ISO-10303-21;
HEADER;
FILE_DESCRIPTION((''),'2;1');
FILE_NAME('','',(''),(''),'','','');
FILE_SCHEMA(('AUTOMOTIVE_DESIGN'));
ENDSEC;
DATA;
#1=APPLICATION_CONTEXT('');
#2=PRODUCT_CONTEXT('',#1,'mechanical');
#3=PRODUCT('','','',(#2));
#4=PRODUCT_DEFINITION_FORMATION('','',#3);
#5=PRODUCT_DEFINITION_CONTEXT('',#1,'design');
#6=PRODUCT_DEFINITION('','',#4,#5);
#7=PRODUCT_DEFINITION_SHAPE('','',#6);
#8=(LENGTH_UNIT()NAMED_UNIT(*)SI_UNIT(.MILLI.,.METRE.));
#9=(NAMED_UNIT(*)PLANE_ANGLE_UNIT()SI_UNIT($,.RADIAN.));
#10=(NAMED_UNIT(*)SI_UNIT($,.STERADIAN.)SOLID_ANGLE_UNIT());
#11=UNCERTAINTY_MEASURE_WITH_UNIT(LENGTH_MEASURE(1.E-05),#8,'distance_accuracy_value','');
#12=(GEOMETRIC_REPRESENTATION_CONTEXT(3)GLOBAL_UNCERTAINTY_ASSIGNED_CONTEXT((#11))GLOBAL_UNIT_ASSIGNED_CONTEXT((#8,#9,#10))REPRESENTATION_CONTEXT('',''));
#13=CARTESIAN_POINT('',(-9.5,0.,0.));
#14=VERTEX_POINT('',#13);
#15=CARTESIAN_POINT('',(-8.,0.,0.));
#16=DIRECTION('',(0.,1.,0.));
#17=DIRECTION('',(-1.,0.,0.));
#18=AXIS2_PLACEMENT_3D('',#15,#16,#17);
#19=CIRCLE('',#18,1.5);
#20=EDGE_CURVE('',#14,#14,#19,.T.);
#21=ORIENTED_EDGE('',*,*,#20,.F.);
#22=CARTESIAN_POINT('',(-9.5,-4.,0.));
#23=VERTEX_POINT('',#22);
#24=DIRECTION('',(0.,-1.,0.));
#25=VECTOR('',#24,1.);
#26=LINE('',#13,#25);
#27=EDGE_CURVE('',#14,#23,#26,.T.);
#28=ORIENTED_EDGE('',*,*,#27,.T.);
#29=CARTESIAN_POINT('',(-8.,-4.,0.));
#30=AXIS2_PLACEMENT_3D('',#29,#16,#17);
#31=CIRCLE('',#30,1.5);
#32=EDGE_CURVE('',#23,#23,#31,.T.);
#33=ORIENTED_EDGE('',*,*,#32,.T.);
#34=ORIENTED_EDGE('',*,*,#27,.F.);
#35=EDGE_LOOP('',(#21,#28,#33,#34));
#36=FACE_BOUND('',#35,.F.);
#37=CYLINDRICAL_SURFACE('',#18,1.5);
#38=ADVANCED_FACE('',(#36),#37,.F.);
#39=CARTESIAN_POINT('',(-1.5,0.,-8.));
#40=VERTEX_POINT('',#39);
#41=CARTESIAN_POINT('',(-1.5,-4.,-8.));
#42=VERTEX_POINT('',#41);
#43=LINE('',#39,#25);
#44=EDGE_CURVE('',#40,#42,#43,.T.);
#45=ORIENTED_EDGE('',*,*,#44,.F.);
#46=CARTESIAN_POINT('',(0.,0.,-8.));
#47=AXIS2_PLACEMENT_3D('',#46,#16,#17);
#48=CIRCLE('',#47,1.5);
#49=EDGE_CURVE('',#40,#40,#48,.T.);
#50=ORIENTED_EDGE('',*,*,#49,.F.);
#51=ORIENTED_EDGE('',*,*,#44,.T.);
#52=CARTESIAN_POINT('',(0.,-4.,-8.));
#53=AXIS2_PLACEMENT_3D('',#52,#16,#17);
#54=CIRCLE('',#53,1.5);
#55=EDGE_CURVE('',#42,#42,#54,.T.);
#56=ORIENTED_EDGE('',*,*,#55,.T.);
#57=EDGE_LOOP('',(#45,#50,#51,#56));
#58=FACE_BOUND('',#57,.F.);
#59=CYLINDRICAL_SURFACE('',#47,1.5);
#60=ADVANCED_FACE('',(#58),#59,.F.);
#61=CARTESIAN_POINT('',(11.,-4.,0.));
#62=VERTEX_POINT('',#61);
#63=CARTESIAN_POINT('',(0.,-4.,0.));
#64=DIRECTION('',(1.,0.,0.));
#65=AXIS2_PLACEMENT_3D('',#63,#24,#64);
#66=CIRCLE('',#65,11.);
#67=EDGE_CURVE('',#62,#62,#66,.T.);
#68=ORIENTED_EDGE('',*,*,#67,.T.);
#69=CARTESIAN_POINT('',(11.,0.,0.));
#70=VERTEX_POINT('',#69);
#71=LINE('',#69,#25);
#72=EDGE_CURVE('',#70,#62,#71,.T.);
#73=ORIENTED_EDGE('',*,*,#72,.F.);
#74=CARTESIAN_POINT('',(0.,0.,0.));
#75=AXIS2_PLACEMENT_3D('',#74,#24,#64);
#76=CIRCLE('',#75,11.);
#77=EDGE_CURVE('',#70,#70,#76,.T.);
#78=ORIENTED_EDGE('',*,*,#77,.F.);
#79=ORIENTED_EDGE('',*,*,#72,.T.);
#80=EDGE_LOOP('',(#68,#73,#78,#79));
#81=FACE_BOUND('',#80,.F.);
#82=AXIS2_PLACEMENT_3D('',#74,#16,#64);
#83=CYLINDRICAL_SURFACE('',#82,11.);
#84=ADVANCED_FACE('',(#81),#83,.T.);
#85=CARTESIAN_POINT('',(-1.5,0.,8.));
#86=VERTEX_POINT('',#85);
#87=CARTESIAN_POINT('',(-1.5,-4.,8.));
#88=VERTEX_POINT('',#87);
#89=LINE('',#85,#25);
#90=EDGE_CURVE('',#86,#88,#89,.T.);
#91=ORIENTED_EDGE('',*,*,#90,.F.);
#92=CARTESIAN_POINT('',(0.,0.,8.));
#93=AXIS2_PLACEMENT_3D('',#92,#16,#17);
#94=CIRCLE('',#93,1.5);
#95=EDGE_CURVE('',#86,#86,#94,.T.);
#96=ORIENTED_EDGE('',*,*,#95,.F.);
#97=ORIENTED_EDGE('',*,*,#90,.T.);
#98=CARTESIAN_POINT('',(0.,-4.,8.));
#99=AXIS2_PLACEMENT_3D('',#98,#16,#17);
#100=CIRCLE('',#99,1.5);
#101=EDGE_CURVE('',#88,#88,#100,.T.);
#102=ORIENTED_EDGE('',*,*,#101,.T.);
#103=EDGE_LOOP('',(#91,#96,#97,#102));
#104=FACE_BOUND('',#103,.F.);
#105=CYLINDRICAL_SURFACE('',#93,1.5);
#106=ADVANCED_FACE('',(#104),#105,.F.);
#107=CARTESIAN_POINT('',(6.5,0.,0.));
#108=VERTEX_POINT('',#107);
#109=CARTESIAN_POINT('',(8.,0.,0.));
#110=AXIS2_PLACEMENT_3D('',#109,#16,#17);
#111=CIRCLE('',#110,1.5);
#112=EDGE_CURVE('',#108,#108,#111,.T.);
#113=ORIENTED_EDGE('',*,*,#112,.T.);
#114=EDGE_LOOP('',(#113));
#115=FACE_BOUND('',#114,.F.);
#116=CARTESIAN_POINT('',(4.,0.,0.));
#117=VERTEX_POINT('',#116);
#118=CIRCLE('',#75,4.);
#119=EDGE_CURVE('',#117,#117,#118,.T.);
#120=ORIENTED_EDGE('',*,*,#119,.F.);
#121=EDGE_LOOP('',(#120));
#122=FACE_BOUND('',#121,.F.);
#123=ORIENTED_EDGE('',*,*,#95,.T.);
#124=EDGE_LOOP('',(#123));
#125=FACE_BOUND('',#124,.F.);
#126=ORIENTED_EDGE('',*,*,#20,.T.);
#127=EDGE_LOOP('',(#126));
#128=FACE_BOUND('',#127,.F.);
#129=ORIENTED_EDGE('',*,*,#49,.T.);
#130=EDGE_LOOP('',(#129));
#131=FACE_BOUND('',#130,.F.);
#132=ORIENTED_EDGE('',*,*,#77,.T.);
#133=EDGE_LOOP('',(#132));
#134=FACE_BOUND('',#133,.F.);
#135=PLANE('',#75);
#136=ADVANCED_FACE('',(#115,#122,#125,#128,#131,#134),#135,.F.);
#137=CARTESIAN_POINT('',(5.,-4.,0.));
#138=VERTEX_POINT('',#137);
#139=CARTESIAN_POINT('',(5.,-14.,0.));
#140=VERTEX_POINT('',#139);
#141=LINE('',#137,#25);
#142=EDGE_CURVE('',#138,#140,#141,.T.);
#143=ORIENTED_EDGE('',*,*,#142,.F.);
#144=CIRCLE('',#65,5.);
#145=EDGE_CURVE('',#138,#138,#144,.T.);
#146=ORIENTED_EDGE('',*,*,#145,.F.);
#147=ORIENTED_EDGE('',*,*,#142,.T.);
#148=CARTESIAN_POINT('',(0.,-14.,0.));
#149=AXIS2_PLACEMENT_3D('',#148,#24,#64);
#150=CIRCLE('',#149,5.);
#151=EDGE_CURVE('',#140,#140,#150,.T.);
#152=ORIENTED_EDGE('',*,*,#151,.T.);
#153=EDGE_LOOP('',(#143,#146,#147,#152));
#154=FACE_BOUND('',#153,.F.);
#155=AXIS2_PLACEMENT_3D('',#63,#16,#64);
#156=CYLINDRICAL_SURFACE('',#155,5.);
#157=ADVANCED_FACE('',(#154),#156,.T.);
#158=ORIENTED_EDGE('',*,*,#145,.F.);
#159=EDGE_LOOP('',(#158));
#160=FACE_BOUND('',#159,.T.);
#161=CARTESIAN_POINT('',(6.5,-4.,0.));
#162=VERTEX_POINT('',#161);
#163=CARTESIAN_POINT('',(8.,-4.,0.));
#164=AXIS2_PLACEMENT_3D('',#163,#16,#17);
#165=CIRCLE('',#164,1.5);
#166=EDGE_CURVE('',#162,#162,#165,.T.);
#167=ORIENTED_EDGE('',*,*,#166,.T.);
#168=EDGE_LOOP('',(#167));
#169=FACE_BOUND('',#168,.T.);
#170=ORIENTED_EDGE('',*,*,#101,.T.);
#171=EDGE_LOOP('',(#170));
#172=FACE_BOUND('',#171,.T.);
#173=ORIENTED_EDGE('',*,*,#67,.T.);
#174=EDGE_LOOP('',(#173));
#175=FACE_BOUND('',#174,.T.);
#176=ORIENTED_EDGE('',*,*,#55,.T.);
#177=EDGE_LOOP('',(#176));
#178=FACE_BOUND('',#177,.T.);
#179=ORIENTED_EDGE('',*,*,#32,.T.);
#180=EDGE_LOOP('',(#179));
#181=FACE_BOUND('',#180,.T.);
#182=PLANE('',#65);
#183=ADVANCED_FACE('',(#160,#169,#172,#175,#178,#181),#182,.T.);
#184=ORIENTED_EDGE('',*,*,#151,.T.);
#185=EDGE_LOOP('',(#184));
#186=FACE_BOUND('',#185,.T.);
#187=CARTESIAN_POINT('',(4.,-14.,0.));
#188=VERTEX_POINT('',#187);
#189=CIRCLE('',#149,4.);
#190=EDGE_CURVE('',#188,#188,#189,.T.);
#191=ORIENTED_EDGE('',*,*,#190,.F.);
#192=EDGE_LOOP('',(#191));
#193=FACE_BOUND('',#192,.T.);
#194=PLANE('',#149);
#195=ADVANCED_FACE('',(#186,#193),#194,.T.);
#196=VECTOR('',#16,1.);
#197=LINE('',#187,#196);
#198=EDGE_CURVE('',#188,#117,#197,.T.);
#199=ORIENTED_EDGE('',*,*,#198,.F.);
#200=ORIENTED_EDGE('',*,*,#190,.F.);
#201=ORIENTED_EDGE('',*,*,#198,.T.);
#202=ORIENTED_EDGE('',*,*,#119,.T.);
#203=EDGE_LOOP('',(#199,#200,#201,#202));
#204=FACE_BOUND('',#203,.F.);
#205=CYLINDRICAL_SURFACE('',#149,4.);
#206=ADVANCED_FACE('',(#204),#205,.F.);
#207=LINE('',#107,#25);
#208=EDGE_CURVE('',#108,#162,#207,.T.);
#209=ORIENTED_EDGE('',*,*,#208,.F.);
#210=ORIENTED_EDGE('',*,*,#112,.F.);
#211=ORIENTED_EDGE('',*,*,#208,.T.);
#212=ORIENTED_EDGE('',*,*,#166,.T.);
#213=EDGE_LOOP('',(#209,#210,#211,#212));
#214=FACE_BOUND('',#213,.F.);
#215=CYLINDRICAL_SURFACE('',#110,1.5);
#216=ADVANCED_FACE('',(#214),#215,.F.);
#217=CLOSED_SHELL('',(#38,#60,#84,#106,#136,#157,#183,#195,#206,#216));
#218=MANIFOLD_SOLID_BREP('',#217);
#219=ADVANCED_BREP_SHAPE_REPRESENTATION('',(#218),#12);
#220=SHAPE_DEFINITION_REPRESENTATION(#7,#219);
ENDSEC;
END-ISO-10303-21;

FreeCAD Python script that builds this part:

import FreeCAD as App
import Part
import Sketcher

doc = App.newDocument("Part")
body = doc.addObject("PartDesign::Body", "Body")

# Sketch on XZ plane
sketch1 = doc.addObject("Sketcher::SketchObject", "Sketch")
body.addObject(sketch1)
sketch1.AttachmentSupport = (doc.XZ_Plane, [""])
sketch1.MapMode = "FlatFace"
sketch1.addGeometry(Part.Circle(App.Vector(0, 0, 0), App.Vector(0, 0, 1), 11), False)
sketch1.addConstraint([
    Sketcher.Constraint("Coincident", 0, 3, -1, 1),
    Sketcher.Constraint("Diameter", 0, 22.0),
])
pad1 = doc.addObject("PartDesign::Pad", "Pad")
body.addObject(pad1)
pad1.Profile = sketch1
pad1.Length = 4

# Sketch on XZ plane
sketch2 = doc.addObject("Sketcher::SketchObject", "Sketch001")
body.addObject(sketch2)
sketch2.AttachmentSupport = (doc.XZ_Plane, [""])
sketch2.MapMode = "FlatFace"
sketch2.AttachmentOffset = App.Placement(App.Vector(0, 0, 4), App.Rotation())
sketch2.addGeometry(Part.Circle(App.Vector(0, 0, 0), App.Vector(0, 0, 1), 5), False)
sketch2.addConstraint([
    Sketcher.Constraint("Coincident", 0, 3, -1, 1),
    Sketcher.Constraint("Diameter", 0, 10.0),
])
pad2 = doc.addObject("PartDesign::Pad", "Pad001")
body.addObject(pad2)
pad2.Profile = sketch2
pad2.Length = 10

# Sketch on XZ plane
sketch3 = doc.addObject("Sketcher::SketchObject", "Sketch002")
body.addObject(sketch3)
sketch3.AttachmentSupport = (doc.XZ_Plane, [""])
sketch3.MapMode = "FlatFace"
sketch3.AttachmentOffset = App.Placement(App.Vector(0, 0, 14), App.Rotation())
sketch3.addGeometry(Part.Circle(App.Vector(0, 0, 0), App.Vector(0, 0, 1), 4), False)
sketch3.addConstraint([
    Sketcher.Constraint("Coincident", 0, 3, -1, 1),
    Sketcher.Constraint("Diameter", 0, 8.0),
])
pocket1 = doc.addObject("PartDesign::Pocket", "Pocket")
body.addObject(pocket1)
pocket1.Profile = sketch3
pocket1.Length = 25

# Sketch on XZ plane
sketch4 = doc.addObject("Sketcher::SketchObject", "Sketch003")
body.addObject(sketch4)
sketch4.AttachmentSupport = (doc.XZ_Plane, [""])
sketch4.MapMode = "FlatFace"
sketch4.addGeometry([
    Part.Circle(App.Vector(8, 0, 0), App.Vector(0, 0, 1), 1.5),
    Part.Circle(App.Vector(0, 8, 0), App.Vector(0, 0, 1), 1.5),
    Part.Circle(App.Vector(-8, 0, 0), App.Vector(0, 0, 1), 1.5),
    Part.Circle(App.Vector(0, -8, 0), App.Vector(0, 0, 1), 1.5),
], False)
sketch4.addConstraint([
    Sketcher.Constraint("Equal", 0, 1),
    Sketcher.Constraint("Equal", 1, 2),
    Sketcher.Constraint("Equal", 2, 3),
    Sketcher.Constraint("Symmetric", 0, 3, 2, 3, -1, 1),
    Sketcher.Constraint("Symmetric", 1, 3, 3, 3, -1, 1),
    Sketcher.Constraint("PointOnObject", 0, 3, -1),
    Sketcher.Constraint("PointOnObject", 1, 3, -2),
    Sketcher.Constraint("Diameter", 0, 3.0),
    Sketcher.Constraint("DistanceX", -1, 1, 0, 3, 8.0),
    Sketcher.Constraint("DistanceY", -1, 1, 1, 3, 8.0),
])
pocket2 = doc.addObject("PartDesign::Pocket", "Pocket001")
body.addObject(pocket2)
pocket2.Profile = sketch4
pocket2.Length = 25
pocket2.Reversed = True

doc.recompute()
